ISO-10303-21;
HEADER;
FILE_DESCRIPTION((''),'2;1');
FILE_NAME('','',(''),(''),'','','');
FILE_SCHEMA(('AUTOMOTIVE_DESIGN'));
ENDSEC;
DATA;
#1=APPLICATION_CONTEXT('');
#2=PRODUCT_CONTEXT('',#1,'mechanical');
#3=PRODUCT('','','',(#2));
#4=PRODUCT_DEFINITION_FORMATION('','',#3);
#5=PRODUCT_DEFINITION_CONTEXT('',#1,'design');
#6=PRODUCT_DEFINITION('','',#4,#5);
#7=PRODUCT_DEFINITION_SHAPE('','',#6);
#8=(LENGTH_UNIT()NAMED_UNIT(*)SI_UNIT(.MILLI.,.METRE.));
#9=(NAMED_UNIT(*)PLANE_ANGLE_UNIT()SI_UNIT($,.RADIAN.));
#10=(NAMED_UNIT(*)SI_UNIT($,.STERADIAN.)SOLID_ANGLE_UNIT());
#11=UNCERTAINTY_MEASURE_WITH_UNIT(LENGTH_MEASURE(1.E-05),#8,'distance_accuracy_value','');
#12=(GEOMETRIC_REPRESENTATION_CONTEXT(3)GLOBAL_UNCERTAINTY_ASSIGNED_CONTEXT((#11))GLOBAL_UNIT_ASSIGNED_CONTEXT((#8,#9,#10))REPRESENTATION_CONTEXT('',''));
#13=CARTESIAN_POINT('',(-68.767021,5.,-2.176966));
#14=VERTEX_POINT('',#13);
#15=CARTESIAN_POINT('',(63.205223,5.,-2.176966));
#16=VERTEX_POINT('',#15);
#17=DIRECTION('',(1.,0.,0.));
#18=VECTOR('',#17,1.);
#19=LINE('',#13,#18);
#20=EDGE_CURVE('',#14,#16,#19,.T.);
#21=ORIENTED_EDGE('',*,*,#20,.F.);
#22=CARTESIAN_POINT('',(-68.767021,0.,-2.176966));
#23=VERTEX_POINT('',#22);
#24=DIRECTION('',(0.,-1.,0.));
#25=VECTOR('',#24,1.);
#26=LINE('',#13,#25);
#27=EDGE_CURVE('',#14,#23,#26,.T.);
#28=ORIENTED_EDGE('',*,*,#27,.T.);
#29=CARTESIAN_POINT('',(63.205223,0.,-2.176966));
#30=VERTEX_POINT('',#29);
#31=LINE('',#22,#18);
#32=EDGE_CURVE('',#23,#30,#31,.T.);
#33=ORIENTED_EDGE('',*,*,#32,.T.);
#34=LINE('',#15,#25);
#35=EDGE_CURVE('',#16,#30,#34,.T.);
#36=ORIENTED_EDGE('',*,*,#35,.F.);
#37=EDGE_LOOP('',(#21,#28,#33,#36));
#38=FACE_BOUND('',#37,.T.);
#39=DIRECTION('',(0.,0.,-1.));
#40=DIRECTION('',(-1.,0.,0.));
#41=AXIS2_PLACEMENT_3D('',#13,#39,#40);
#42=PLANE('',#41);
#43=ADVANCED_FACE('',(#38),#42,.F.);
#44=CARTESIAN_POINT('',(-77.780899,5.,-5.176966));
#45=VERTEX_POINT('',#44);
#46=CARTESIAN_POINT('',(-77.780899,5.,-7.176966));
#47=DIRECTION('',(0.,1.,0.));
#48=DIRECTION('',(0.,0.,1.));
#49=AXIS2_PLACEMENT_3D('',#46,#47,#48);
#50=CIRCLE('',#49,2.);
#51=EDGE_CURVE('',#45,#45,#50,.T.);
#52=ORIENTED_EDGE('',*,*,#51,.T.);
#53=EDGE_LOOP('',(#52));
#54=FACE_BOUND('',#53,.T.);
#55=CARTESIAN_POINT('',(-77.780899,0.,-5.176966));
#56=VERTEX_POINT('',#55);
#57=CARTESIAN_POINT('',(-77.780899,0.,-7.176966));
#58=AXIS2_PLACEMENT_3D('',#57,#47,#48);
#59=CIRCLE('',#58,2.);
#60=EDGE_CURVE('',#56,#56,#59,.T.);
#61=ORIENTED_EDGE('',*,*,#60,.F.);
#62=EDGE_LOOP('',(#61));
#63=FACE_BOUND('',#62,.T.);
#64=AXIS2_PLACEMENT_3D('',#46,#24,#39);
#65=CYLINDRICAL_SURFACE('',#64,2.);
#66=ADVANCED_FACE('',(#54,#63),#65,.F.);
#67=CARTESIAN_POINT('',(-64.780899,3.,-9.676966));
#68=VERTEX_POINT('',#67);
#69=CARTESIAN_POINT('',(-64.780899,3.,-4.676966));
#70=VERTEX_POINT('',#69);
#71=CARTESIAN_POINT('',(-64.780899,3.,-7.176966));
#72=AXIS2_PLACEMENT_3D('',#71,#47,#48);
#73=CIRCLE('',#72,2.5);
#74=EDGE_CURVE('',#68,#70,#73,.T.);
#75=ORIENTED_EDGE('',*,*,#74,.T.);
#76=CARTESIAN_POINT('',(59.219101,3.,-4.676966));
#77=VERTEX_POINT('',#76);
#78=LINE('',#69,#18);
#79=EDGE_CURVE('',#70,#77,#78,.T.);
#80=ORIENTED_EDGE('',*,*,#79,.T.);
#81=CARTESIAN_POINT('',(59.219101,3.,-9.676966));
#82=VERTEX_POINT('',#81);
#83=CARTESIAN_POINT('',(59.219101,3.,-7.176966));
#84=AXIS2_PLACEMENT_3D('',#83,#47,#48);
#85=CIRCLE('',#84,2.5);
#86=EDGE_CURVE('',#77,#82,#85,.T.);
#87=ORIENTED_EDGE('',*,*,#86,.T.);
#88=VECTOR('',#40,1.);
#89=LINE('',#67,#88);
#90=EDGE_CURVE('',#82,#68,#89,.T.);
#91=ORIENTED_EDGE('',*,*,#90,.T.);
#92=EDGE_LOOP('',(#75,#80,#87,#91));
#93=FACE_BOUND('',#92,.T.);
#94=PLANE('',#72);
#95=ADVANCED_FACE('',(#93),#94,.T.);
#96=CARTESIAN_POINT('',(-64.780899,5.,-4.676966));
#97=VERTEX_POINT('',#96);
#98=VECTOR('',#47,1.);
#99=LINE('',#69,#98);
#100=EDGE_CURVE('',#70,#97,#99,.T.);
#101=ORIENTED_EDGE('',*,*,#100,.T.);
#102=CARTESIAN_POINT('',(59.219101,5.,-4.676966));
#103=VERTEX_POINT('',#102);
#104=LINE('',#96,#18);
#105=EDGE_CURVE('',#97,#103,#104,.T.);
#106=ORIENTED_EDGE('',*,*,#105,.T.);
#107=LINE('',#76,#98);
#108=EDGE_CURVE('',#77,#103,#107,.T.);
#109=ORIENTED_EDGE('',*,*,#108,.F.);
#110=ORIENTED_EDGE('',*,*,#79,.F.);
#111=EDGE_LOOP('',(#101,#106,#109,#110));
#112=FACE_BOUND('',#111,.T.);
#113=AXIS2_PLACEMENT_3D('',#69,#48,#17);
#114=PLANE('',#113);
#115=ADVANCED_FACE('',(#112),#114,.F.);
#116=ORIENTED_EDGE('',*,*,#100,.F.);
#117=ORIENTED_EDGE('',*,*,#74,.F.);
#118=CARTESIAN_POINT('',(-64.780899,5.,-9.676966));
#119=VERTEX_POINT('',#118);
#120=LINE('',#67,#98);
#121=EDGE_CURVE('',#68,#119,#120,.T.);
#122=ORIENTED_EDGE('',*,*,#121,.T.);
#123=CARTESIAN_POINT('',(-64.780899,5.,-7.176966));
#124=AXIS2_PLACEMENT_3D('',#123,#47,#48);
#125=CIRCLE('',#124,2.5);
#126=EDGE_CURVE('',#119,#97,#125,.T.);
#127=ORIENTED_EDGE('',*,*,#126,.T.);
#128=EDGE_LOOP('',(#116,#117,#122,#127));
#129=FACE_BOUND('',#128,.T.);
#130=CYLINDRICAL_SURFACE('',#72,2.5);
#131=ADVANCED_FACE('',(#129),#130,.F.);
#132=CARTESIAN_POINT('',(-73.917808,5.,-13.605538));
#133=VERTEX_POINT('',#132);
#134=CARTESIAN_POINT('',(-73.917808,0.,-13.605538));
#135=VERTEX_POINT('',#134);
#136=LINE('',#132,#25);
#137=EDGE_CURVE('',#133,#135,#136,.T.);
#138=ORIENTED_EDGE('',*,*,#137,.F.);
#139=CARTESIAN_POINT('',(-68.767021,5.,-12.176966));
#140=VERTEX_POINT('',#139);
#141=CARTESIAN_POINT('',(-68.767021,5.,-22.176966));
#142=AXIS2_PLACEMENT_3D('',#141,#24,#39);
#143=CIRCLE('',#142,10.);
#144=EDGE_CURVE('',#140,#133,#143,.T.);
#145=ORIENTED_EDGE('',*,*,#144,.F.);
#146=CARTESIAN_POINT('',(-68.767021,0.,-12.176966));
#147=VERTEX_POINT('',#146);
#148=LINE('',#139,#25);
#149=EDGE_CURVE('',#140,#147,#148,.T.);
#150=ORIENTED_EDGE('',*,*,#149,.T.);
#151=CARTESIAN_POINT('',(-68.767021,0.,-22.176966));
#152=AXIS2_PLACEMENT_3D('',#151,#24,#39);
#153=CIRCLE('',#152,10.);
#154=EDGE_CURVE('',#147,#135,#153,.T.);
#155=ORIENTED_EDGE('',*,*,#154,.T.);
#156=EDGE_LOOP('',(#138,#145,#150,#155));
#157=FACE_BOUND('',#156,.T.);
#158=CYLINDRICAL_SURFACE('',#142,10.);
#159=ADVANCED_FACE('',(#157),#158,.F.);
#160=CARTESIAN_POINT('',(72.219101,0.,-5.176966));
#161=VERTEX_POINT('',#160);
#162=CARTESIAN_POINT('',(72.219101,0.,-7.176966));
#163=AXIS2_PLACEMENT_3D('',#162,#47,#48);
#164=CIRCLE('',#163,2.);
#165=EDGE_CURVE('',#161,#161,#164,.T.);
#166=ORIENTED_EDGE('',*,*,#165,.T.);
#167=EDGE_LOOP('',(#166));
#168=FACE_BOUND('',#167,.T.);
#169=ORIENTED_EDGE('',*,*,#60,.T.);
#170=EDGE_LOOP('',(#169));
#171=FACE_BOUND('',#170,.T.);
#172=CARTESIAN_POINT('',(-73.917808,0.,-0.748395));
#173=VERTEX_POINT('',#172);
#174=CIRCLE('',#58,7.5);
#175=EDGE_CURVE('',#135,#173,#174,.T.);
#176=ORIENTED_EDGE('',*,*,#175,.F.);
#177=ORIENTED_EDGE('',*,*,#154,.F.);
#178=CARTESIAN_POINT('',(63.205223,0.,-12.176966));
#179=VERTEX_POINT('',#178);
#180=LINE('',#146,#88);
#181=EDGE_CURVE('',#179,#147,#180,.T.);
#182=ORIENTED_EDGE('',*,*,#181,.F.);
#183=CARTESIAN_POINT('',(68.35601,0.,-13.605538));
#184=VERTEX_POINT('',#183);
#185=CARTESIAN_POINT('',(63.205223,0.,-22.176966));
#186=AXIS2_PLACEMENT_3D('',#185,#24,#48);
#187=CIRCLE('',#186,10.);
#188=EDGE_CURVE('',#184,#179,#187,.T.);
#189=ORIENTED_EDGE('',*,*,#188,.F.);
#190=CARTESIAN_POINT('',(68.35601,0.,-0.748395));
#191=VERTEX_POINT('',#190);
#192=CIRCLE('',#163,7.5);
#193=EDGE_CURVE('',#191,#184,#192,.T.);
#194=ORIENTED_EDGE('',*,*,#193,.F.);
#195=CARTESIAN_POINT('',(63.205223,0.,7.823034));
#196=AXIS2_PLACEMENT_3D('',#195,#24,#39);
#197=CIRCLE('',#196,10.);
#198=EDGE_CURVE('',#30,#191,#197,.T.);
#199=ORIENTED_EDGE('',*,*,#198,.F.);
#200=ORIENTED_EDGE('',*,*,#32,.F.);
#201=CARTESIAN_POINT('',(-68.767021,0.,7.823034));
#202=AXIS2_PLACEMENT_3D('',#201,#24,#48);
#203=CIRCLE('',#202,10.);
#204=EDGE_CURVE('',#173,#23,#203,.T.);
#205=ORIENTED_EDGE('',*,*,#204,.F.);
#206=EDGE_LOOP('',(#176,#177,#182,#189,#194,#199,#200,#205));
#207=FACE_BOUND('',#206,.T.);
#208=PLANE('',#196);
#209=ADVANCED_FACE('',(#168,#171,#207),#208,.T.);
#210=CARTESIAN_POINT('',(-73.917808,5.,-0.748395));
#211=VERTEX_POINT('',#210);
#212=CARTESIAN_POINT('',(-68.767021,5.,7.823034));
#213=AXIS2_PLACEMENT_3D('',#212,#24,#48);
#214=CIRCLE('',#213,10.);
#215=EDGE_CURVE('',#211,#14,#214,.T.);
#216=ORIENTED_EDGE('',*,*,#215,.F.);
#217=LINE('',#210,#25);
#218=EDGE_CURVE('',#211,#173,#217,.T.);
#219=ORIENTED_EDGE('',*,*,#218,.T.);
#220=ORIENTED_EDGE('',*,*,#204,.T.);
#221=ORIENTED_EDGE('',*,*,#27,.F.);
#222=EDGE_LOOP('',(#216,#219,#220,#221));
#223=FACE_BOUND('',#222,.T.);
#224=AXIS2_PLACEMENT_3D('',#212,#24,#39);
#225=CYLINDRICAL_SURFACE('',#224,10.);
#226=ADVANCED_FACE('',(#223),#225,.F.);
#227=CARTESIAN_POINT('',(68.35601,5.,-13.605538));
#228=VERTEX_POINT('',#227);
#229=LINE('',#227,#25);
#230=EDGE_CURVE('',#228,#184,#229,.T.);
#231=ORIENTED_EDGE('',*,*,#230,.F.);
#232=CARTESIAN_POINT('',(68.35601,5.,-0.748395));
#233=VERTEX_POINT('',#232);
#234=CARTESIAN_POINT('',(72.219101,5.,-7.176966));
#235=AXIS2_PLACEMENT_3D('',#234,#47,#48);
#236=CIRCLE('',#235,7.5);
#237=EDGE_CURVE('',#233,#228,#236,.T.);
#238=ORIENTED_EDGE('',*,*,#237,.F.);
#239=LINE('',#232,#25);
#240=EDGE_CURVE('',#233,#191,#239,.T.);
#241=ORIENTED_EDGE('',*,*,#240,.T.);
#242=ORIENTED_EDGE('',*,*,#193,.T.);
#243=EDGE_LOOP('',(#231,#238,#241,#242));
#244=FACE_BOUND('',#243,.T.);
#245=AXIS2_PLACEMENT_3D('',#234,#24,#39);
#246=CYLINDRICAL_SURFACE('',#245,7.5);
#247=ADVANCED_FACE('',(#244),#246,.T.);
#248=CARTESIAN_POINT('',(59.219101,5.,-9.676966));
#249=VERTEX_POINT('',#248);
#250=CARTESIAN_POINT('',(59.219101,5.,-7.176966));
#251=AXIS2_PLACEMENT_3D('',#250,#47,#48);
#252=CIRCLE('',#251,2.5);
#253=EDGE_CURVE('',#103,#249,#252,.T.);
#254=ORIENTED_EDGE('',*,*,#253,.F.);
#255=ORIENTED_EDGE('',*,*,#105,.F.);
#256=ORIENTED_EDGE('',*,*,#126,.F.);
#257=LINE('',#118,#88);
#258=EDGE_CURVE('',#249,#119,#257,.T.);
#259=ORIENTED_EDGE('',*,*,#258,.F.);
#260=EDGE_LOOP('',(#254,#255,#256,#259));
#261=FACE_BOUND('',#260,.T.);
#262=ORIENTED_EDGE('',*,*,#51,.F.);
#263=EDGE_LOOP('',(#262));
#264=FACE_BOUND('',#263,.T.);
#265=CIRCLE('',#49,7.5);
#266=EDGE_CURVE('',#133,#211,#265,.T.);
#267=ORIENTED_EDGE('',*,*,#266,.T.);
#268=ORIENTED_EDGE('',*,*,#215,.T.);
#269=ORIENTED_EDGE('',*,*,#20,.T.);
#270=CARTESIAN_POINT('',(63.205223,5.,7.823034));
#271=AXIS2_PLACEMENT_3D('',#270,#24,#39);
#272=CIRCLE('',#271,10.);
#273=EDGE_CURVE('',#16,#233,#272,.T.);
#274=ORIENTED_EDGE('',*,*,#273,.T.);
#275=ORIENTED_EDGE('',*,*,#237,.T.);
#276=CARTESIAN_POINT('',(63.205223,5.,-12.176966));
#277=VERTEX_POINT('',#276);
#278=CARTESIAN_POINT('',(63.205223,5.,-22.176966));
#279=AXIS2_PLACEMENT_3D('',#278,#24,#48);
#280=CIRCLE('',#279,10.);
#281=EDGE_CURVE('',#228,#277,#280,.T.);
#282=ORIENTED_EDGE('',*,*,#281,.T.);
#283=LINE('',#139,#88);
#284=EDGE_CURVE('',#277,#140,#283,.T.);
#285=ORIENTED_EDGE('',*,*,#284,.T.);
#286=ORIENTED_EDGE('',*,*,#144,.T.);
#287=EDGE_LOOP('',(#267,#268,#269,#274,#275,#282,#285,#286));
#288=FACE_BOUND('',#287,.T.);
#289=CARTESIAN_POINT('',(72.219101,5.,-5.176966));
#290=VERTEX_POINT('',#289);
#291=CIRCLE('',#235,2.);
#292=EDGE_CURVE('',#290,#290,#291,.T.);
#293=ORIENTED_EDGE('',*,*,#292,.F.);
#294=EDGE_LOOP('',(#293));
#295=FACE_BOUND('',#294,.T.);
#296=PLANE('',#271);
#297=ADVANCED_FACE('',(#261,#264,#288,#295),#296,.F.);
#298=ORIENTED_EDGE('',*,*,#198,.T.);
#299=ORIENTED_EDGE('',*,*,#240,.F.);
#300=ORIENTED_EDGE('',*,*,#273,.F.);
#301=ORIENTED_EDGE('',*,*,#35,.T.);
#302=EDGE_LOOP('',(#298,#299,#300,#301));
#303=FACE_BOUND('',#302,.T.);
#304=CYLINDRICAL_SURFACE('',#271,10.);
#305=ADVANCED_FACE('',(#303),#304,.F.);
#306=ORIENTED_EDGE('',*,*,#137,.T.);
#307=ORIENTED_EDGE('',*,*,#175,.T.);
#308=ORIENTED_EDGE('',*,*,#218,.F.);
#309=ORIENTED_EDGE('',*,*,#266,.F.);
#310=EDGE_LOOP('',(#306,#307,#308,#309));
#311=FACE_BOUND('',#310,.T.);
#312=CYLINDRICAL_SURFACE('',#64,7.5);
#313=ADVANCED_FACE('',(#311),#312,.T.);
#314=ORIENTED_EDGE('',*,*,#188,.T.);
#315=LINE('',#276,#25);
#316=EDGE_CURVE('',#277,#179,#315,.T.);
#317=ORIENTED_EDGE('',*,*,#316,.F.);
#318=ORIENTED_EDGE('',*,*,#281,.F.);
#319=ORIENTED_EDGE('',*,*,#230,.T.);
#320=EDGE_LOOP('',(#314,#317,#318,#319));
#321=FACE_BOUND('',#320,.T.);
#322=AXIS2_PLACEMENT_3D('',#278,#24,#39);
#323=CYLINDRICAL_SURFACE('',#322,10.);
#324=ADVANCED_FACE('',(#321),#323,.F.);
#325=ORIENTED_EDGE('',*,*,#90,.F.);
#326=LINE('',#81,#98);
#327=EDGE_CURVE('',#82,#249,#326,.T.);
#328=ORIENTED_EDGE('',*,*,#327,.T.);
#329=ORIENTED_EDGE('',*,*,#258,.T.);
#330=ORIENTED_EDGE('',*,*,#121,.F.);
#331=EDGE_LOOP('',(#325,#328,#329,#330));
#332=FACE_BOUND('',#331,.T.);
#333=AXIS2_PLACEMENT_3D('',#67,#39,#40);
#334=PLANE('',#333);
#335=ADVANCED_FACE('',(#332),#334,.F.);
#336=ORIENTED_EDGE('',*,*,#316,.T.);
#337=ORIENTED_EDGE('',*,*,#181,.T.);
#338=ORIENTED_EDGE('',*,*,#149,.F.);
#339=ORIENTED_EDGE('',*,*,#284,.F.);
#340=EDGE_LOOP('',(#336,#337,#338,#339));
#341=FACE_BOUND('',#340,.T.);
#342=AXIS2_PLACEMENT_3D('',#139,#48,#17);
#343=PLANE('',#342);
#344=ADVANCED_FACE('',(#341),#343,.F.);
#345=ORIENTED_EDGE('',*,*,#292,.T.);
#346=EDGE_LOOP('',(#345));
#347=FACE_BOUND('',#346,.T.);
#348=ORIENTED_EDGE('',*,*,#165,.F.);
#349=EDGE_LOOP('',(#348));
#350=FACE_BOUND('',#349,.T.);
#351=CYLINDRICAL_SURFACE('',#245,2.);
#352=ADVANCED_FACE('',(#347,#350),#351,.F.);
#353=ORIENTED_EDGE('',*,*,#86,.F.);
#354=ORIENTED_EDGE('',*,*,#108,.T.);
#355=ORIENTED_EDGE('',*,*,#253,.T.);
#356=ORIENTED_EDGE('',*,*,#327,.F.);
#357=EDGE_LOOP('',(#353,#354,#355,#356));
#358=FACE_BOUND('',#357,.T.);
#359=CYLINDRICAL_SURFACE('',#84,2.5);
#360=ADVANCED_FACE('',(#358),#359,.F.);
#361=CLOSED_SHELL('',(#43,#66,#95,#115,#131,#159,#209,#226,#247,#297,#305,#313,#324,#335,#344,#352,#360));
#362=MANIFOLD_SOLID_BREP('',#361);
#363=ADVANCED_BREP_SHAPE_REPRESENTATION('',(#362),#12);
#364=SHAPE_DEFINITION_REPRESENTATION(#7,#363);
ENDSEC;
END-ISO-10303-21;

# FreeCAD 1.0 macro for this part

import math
import FreeCAD as App
import Part
import Sketcher

doc = App.newDocument("Part")
body = doc.addObject("PartDesign::Body", "Body")

# Sketch on XZ plane
sketch1 = body.newObject("Sketcher::SketchObject", "Sketch")
sketch1.AttachmentSupport = (doc.getObject("XZ_Plane"), [""])
sketch1.MapMode = "FlatFace"
sketch1.addGeometry(Part.LineSegment(App.Vector(63.205223, -12.176966, 0), App.Vector(-68.767021, -12.176966, 0)), False)
sketch1.addGeometry(Part.ArcOfCircle(Part.Circle(App.Vector(-68.767021, -22.176966, 0), App.Vector(0, 0, 1), 10), math.radians(90), math.radians(121.002719)), False)
sketch1.addGeometry(Part.ArcOfCircle(Part.Circle(App.Vector(-77.780899, -7.176966, 0), App.Vector(0, 0, 1), 7.5), math.radians(58.997281), math.radians(301.002719)), False)
sketch1.addGeometry(Part.ArcOfCircle(Part.Circle(App.Vector(-68.767021, 7.823034, 0), App.Vector(0, 0, 1), 10), math.radians(-121.002719), math.radians(-90)), False)
sketch1.addGeometry(Part.LineSegment(App.Vector(-68.767021, -2.176966, 0), App.Vector(63.205223, -2.176966, 0)), False)
sketch1.addGeometry(Part.ArcOfCircle(Part.Circle(App.Vector(63.205223, 7.823034, 0), App.Vector(0, 0, 1), 10), math.radians(-90), math.radians(-58.997281)), False)
sketch1.addGeometry(Part.ArcOfCircle(Part.Circle(App.Vector(72.219101, -7.176966, 0), App.Vector(0, 0, 1), 7.5), math.radians(-121.002719), math.radians(121.002719)), False)
sketch1.addGeometry(Part.ArcOfCircle(Part.Circle(App.Vector(63.205223, -22.176966, 0), App.Vector(0, 0, 1), 10), math.radians(58.997281), math.radians(90)), False)
sketch1.addGeometry(Part.Circle(App.Vector(72.219101, -7.176966, 0), App.Vector(0, 0, 1), 2), False)
sketch1.addGeometry(Part.Circle(App.Vector(-77.780899, -7.176966, 0), App.Vector(0, 0, 1), 2), False)
sketch1.addConstraint(Sketcher.Constraint("Tangent", 0, 2, 1, 1))
sketch1.addConstraint(Sketcher.Constraint("Tangent", 1, 2, 2, 2))
sketch1.addConstraint(Sketcher.Constraint("Tangent", 2, 1, 3, 1))
sketch1.addConstraint(Sketcher.Constraint("Tangent", 3, 2, 4, 1))
sketch1.addConstraint(Sketcher.Constraint("Tangent", 4, 2, 5, 1))
sketch1.addConstraint(Sketcher.Constraint("Tangent", 5, 2, 6, 2))
sketch1.addConstraint(Sketcher.Constraint("Tangent", 6, 1, 7, 1))
sketch1.addConstraint(Sketcher.Constraint("Tangent", 7, 2, 0, 1))
sketch1.addConstraint(Sketcher.Constraint("Horizontal", 0))
sketch1.addConstraint(Sketcher.Constraint("Horizontal", 4))
sketch1.addConstraint(Sketcher.Constraint("Coincident", 8, 3, 6, 3))
sketch1.addConstraint(Sketcher.Constraint("Coincident", 9, 3, 2, 3))
sketch1.addConstraint(Sketcher.Constraint("Equal", 1, 3))
sketch1.addConstraint(Sketcher.Constraint("Equal", 3, 5))
sketch1.addConstraint(Sketcher.Constraint("Equal", 2, 6))
sketch1.addConstraint(Sketcher.Constraint("Equal", 5, 7))
sketch1.addConstraint(Sketcher.Constraint("Equal", 8, 9))
sketch1.addConstraint(Sketcher.Constraint("Horizontal", 2, 3, 6, 3))
sketch1.addConstraint(Sketcher.Constraint("Vertical", 1, 3, 3, 3))
sketch1.addConstraint(Sketcher.Constraint("Diameter", 8, 4.0))
sketch1.addConstraint(Sketcher.Constraint("Radius", 1, 10.0))
sketch1.addConstraint(Sketcher.Constraint("Radius", 2, 7.5))
sketch1.addConstraint(Sketcher.Constraint("DistanceY", 1, 3, 2, 3, 15.0))
sketch1.addConstraint(Sketcher.Constraint("DistanceX", 2, 3, 6, 3, 150.0))
sketch1.addConstraint(Sketcher.Constraint("DistanceX", 2, 3, -1, 1, 77.780899))
sketch1.addConstraint(Sketcher.Constraint("DistanceY", 1, 3, -1, 1, 22.176966))
pad1 = body.newObject("PartDesign::Pad", "Pad")
pad1.Profile = sketch1
pad1.Length = 5
pad1.Reversed = True

# Sketch on XZ plane
sketch2 = body.newObject("Sketcher::SketchObject", "Sketch001")
sketch2.AttachmentSupport = (doc.getObject("XZ_Plane"), [""])
sketch2.MapMode = "FlatFace"
sketch2.AttachmentOffset = App.Placement(App.Vector(0, 0, -5), App.Rotation())
sketch2.addGeometry(Part.LineSegment(App.Vector(59.219101, -9.676966, 0), App.Vector(-64.780899, -9.676966, 0)), False)
sketch2.addGeometry(Part.ArcOfCircle(Part.Circle(App.Vector(-64.780899, -7.176966, 0), App.Vector(0, 0, 1), 2.5), math.radians(90), math.radians(270)), False)
sketch2.addGeometry(Part.LineSegment(App.Vector(-64.780899, -4.676966, 0), App.Vector(59.219101, -4.676966, 0)), False)
sketch2.addGeometry(Part.ArcOfCircle(Part.Circle(App.Vector(59.219101, -7.176966, 0), App.Vector(0, 0, 1), 2.5), math.radians(-90), math.radians(90)), False)
sketch2.addConstraint(Sketcher.Constraint("Tangent", 0, 2, 1, 2))
sketch2.addConstraint(Sketcher.Constraint("Tangent", 1, 1, 2, 1))
sketch2.addConstraint(Sketcher.Constraint("Tangent", 2, 2, 3, 2))
sketch2.addConstraint(Sketcher.Constraint("Tangent", 3, 1, 0, 1))
sketch2.addConstraint(Sketcher.Constraint("Horizontal", 0))
sketch2.addConstraint(Sketcher.Constraint("Horizontal", 2))
sketch2.addConstraint(Sketcher.Constraint("Radius", 1, 2.5))
sketch2.addConstraint(Sketcher.Constraint("DistanceX", 0, 2, 0, 1, 124.0))
sketch2.addConstraint(Sketcher.Constraint("DistanceX", 1, 3, -1, 1, 64.780899))
sketch2.addConstraint(Sketcher.Constraint("DistanceY", 1, 3, -1, 1, 7.176966))
pocket1 = body.newObject("PartDesign::Pocket", "Pocket")
pocket1.Profile = sketch2
pocket1.Length = 2
pocket1.Reversed = True

doc.recompute()
